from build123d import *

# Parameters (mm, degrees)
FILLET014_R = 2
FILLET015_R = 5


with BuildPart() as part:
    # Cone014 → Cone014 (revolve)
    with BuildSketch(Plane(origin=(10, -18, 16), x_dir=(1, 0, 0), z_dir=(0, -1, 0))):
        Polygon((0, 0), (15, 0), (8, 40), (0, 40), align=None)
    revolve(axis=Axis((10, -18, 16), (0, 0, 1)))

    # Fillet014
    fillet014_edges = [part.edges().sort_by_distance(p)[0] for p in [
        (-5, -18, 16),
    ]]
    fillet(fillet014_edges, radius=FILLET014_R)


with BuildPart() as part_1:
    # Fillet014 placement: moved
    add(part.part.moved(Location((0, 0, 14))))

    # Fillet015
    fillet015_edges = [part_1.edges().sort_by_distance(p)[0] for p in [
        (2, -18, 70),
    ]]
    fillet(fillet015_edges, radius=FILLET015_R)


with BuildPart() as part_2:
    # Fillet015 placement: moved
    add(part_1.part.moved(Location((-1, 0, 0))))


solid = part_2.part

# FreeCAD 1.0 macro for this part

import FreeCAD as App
import Part
import Sketcher

V = App.Vector
Q = App.Units.Quantity


def edges_at(feature, points):
    """Names of the edges that pass closest to the given points."""
    edges = feature.Shape.Edges
    near = lambda p: min(range(len(edges)), key=lambda i: edges[i].distToShape(Part.Vertex(*p))[0])
    return sorted({f"Edge{near(p) + 1}" for p in points})

doc = App.newDocument("Part")
body = doc.addObject("PartDesign::Body", "Body")

sketch1 = body.newObject("Sketcher::SketchObject", "Sketch")
sketch1.AttachmentSupport = (doc.getObject("XZ_Plane"), [""])
sketch1.MapMode = "FlatFace"
sketch1.AttachmentOffset = App.Placement(V(0, 0, 18), App.Rotation())
sketch1.addGeometry([
    Part.LineSegment(V(10, 16, 0), V(25, 16, 0)),
    Part.LineSegment(V(25, 16, 0), V(18, 56, 0)),
    Part.LineSegment(V(18, 56, 0), V(10, 56, 0)),
    Part.LineSegment(V(10, 56, 0), V(10, 16, 0)),
], False)
sketch1.addGeometry(Part.LineSegment(V(10, 16, 0), V(10, 56, 0)), True)
sketch1.addConstraint([
    Sketcher.Constraint("Coincident", 0, 2, 1, 1),
    Sketcher.Constraint("Coincident", 1, 2, 2, 1),
    Sketcher.Constraint("Coincident", 2, 2, 3, 1),
    Sketcher.Constraint("Coincident", 3, 2, 0, 1),
    Sketcher.Constraint("Horizontal", 0),
    Sketcher.Constraint("Horizontal", 2),
    Sketcher.Constraint("Vertical", 3),
    Sketcher.Constraint("Vertical", 4),
    Sketcher.Constraint("Coincident", 4, 1, 3, 2),
    Sketcher.Constraint("Horizontal", 1, 2, 4, 2),
    Sketcher.Constraint("DistanceX", 0, 1, 0, 2, Q("15 mm")),
    Sketcher.Constraint("DistanceX", 2, 2, 2, 1, Q("8 mm")),
    Sketcher.Constraint("DistanceY", 3, 2, 3, 1, Q("40 mm")),
    Sketcher.Constraint("DistanceX", -1, 1, 0, 2, Q("25 mm")),
    Sketcher.Constraint("DistanceY", -1, 1, 0, 2, Q("16 mm")),
])
revolution = body.newObject("PartDesign::Revolution", "Revolution")
revolution.Profile = sketch1
revolution.ReferenceAxis = (sketch1, ["Axis0"])
revolution.Angle = 360
doc.recompute()

fillet = body.newObject("PartDesign::Fillet", "Fillet")
fillet.Base = (revolution, edges_at(revolution, [(-5, -18, 16)]))
fillet.Radius = 2
body2 = doc.addObject("PartDesign::Body", "Body001")
doc.recompute()

body.Placement = App.Placement(V(0, 0, 14), App.Rotation(V(0, 0, 1), 0))
boolean = body2.newObject("PartDesign::Boolean", "Boolean")
boolean.Type = "Fuse"
boolean.addObjects([body])
doc.recompute()

fillet2 = body2.newObject("PartDesign::Fillet", "Fillet001")
fillet2.Base = (boolean, edges_at(boolean, [(2, -18, 70)]))
fillet2.Radius = 5
body3 = doc.addObject("PartDesign::Body", "Body002")
doc.recompute()

body2.Placement = App.Placement(V(-1, 0, 0), App.Rotation(V(0, 0, 1), 0))
boolean2 = body3.newObject("PartDesign::Boolean", "Boolean001")
boolean2.Type = "Fuse"
boolean2.addObjects([body2])

doc.recompute()
